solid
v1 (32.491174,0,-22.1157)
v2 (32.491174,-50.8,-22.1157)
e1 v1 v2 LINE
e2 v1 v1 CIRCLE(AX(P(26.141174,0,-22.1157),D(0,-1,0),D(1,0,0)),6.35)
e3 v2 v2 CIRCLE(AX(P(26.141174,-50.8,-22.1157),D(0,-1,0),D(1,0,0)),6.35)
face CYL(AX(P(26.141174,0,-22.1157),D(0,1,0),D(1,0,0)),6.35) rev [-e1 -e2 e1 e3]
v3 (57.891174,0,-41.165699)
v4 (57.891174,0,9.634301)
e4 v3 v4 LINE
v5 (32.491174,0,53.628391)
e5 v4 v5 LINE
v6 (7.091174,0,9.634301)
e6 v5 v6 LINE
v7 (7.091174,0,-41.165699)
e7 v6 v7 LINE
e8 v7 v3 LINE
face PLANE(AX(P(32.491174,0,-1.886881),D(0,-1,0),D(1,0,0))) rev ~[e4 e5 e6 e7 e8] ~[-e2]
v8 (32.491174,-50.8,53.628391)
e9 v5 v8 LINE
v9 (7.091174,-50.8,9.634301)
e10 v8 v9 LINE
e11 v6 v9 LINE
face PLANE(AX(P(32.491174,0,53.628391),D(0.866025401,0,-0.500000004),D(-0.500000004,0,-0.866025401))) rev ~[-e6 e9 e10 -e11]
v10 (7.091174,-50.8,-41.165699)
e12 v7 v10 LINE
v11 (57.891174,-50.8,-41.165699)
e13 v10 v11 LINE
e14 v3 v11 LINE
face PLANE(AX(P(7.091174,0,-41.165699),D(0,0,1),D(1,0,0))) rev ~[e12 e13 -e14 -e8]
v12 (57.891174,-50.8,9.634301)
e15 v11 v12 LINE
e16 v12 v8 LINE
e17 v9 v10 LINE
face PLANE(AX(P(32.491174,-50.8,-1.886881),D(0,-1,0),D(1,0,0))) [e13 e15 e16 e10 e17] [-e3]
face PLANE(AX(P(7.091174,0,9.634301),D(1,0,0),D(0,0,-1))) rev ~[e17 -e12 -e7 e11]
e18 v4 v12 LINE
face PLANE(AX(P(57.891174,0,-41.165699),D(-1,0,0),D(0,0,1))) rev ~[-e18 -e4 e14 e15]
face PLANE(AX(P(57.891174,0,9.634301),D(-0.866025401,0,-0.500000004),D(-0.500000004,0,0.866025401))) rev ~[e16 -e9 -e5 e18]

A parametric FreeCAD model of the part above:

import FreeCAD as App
import Part
import Sketcher
Q = App.Units.Quantity

doc = App.newDocument("Part")
body = doc.addObject("PartDesign::Body", "Body")

sketch1 = body.newObject("Sketcher::SketchObject", "Sketch")
sketch1.AttachmentSupport = (doc.getObject("XZ_Plane"), [""])
sketch1.MapMode = "FlatFace"
sketch1.addGeometry(Part.LineSegment(App.Vector(7, 10, 0), App.Vector(7, -41, 0)), False)
sketch1.addGeometry(Part.LineSegment(App.Vector(7, -41, 0), App.Vector(58, -41, 0)), False)
sketch1.addGeometry(Part.LineSegment(App.Vector(58, -41, 0), App.Vector(58, 10, 0)), False)
sketch1.addGeometry(Part.LineSegment(App.Vector(58, 10, 0), App.Vector(32, 54, 0)), False)
sketch1.addGeometry(Part.LineSegment(App.Vector(32, 54, 0), App.Vector(7, 10, 0)), False)
sketch1.addGeometry(Part.Circle(App.Vector(26, -22, 0), App.Vector(0, 0, 1), 6), False)
sketch1.addConstraint(Sketcher.Constraint("Coincident", 0, 2, 1, 1))
sketch1.addConstraint(Sketcher.Constraint("Coincident", 1, 2, 2, 1))
sketch1.addConstraint(Sketcher.Constraint("Coincident", 2, 2, 3, 1))
sketch1.addConstraint(Sketcher.Constraint("Coincident", 3, 2, 4, 1))
sketch1.addConstraint(Sketcher.Constraint("Coincident", 4, 2, 0, 1))
sketch1.addConstraint(Sketcher.Constraint("Vertical", 0))
sketch1.addConstraint(Sketcher.Constraint("Horizontal", 1))
sketch1.addConstraint(Sketcher.Constraint("Vertical", 2))
sketch1.addConstraint(Sketcher.Constraint("Horizontal", 2, 2, 4, 2))
sketch1.addConstraint(Sketcher.Constraint("Equal", 1, 0))
sketch1.addConstraint(Sketcher.Constraint("Equal", 3, 4))
sketch1.addConstraint(Sketcher.Constraint("Diameter", 5, Q("0.5 in")))
sketch1.addConstraint(Sketcher.Constraint("DistanceX", 1, 1, 1, 2, Q("2 in")))
sketch1.addConstraint(Sketcher.Constraint("Distance", 3, Q("2 in")))
sketch1.addConstraint(Sketcher.Constraint("DistanceX", 0, 2, 5, 3, Q("0.75 in")))
sketch1.addConstraint(Sketcher.Constraint("DistanceY", 0, 2, 5, 3, Q("0.75 in")))
sketch1.addConstraint(Sketcher.Constraint("DistanceY", 5, 3, -1, 1, Q("22.1157 mm")))
sketch1.addConstraint(Sketcher.Constraint("DistanceX", -1, 1, 5, 3, Q("26.141174 mm")))
pad1 = body.newObject("PartDesign::Pad", "Pad")
pad1.Profile = sketch1
pad1.Length = Q("2 in")

sketch2 = body.newObject("Sketcher::SketchObject", "Sketch001")
sketch2.AttachmentSupport = (doc.getObject("XZ_Plane"), [""])
sketch2.MapMode = "FlatFace"
sketch2.addGeometry(Part.LineSegment(App.Vector(7, 10, 0), App.Vector(7, -41, 0)), False)
sketch2.addGeometry(Part.LineSegment(App.Vector(7, -41, 0), App.Vector(58, -41, 0)), False)
sketch2.addGeometry(Part.LineSegment(App.Vector(58, -41, 0), App.Vector(58, 10, 0)), False)
sketch2.addGeometry(Part.LineSegment(App.Vector(58, 10, 0), App.Vector(32, 54, 0)), False)
sketch2.addGeometry(Part.LineSegment(App.Vector(32, 54, 0), App.Vector(7, 10, 0)), False)
sketch2.addGeometry(Part.Circle(App.Vector(26, -22, 0), App.Vector(0, 0, 1), 6), False)
sketch2.addConstraint(Sketcher.Constraint("Coincident", 0, 2, 1, 1))
sketch2.addConstraint(Sketcher.Constraint("Coincident", 1, 2, 2, 1))
sketch2.addConstraint(Sketcher.Constraint("Coincident", 2, 2, 3, 1))
sketch2.addConstraint(Sketcher.Constraint("Coincident", 3, 2, 4, 1))
sketch2.addConstraint(Sketcher.Constraint("Coincident", 4, 2, 0, 1))
sketch2.addConstraint(Sketcher.Constraint("Vertical", 0))
sketch2.addConstraint(Sketcher.Constraint("Horizontal", 1))
sketch2.addConstraint(Sketcher.Constraint("Vertical", 2))
sketch2.addConstraint(Sketcher.Constraint("Horizontal", 2, 2, 4, 2))
sketch2.addConstraint(Sketcher.Constraint("Equal", 1, 0))
sketch2.addConstraint(Sketcher.Constraint("Equal", 3, 4))
sketch2.addConstraint(Sketcher.Constraint("Diameter", 5, Q("0.5 in")))
sketch2.addConstraint(Sketcher.Constraint("DistanceX", 1, 1, 1, 2, Q("2 in")))
sketch2.addConstraint(Sketcher.Constraint("Distance", 3, Q("2 in")))
sketch2.addConstraint(Sketcher.Constraint("DistanceX", 0, 2, 5, 3, Q("0.75 in")))
sketch2.addConstraint(Sketcher.Constraint("DistanceY", 0, 2, 5, 3, Q("0.75 in")))
sketch2.addConstraint(Sketcher.Constraint("DistanceY", 5, 3, -1, 1, Q("22.1157 mm")))
sketch2.addConstraint(Sketcher.Constraint("DistanceX", -1, 1, 5, 3, Q("26.141174 mm")))
pad2 = body.newObject("PartDesign::Pad", "Pad001")
pad2.Profile = sketch2
pad2.Length = Q("2 in")

doc.recompute()
